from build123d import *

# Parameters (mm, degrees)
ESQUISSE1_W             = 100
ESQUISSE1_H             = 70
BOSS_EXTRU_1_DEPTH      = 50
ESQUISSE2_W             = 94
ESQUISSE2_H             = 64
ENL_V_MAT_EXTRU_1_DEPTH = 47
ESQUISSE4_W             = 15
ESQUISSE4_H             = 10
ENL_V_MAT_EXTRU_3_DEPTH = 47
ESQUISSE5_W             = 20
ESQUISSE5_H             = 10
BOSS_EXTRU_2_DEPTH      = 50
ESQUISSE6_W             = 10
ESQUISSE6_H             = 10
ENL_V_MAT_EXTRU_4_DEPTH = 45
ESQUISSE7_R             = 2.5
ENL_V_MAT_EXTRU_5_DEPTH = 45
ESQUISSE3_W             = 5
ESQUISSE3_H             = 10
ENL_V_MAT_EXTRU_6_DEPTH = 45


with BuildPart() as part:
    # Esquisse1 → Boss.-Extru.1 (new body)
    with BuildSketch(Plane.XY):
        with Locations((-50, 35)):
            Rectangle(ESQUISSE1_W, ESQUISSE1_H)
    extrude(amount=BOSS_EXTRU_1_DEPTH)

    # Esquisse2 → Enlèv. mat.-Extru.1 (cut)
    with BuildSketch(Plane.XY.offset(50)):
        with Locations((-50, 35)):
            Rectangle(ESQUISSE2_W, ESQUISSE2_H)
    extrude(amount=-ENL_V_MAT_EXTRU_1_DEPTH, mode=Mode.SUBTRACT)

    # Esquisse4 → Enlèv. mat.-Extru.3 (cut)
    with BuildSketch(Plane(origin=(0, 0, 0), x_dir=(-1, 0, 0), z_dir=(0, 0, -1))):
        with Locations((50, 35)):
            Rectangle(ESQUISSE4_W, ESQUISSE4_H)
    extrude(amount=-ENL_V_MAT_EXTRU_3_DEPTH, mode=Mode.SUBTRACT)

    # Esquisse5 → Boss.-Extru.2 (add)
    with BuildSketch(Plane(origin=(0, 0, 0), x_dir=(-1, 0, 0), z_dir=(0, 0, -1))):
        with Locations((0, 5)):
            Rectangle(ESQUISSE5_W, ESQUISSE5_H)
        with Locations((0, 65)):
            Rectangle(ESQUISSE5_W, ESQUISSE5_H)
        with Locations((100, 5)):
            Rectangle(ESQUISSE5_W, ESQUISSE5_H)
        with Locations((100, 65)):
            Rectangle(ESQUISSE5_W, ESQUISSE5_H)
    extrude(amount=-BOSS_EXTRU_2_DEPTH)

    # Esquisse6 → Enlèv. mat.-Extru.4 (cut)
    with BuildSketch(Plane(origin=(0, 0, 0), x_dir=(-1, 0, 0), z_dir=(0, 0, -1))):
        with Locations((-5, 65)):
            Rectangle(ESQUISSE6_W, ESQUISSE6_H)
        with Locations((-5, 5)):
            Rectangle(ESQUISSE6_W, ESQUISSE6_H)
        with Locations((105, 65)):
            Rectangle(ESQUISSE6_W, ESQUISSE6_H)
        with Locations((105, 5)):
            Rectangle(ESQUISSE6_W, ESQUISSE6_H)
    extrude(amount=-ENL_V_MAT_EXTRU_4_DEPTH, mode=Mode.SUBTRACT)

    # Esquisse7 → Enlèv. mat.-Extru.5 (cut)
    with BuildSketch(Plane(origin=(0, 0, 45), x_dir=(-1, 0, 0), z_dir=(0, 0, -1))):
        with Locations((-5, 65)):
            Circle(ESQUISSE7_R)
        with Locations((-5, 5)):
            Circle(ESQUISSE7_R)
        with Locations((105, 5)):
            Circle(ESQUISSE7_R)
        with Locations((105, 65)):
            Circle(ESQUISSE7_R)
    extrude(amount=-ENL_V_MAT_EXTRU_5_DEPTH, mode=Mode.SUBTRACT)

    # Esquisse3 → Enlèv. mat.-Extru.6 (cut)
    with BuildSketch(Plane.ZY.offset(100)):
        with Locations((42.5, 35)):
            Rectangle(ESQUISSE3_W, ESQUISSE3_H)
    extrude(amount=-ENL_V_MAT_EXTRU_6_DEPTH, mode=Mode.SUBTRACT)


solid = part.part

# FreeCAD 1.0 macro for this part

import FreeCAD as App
import Part
import Sketcher

V = App.Vector

doc = App.newDocument("Part")
body = doc.addObject("PartDesign::Body", "Body")

# Sketch on XY plane
sketch1 = body.newObject("Sketcher::SketchObject", "Sketch")
sketch1.AttachmentSupport = (doc.getObject("XY_Plane"), [""])
sketch1.MapMode = "FlatFace"
sketch1.addGeometry([
    Part.LineSegment(V(-100, 70, 0), V(-100, 0, 0)),
    Part.LineSegment(V(-100, 0, 0), V(0, 0, 0)),
    Part.LineSegment(V(0, 0, 0), V(0, 70, 0)),
    Part.LineSegment(V(0, 70, 0), V(-100, 70, 0)),
], False)
sketch1.addConstraint([
    Sketcher.Constraint("Coincident", 0, 2, 1, 1),
    Sketcher.Constraint("Coincident", 1, 2, 2, 1),
    Sketcher.Constraint("Coincident", 2, 2, 3, 1),
    Sketcher.Constraint("Coincident", 3, 2, 0, 1),
    Sketcher.Constraint("Vertical", 0),
    Sketcher.Constraint("Horizontal", 1),
    Sketcher.Constraint("Vertical", 2),
    Sketcher.Constraint("Horizontal", 3),
    Sketcher.Constraint("Coincident", 1, 2, -1, 1),
    Sketcher.Constraint("DistanceX", 1, 1, 1, 2, 100.0),
    Sketcher.Constraint("DistanceY", 0, 2, 0, 1, 70.0),
])
pad1 = body.newObject("PartDesign::Pad", "Pad")
pad1.Profile = sketch1
pad1.Length = 50

# Sketch on XY plane
sketch2 = body.newObject("Sketcher::SketchObject", "Sketch001")
sketch2.AttachmentSupport = (doc.getObject("XY_Plane"), [""])
sketch2.MapMode = "FlatFace"
sketch2.AttachmentOffset = App.Placement(V(0, 0, 50), App.Rotation())
sketch2.addGeometry([
    Part.LineSegment(V(-97, 67, 0), V(-97, 3, 0)),
    Part.LineSegment(V(-97, 3, 0), V(-3, 3, 0)),
    Part.LineSegment(V(-3, 3, 0), V(-3, 67, 0)),
    Part.LineSegment(V(-3, 67, 0), V(-97, 67, 0)),
], False)
sketch2.addConstraint([
    Sketcher.Constraint("Coincident", 0, 2, 1, 1),
    Sketcher.Constraint("Coincident", 1, 2, 2, 1),
    Sketcher.Constraint("Coincident", 2, 2, 3, 1),
    Sketcher.Constraint("Coincident", 3, 2, 0, 1),
    Sketcher.Constraint("Vertical", 0),
    Sketcher.Constraint("Horizontal", 1),
    Sketcher.Constraint("Vertical", 2),
    Sketcher.Constraint("Horizontal", 3),
    Sketcher.Constraint("DistanceX", 1, 1, 1, 2, 94.0),
    Sketcher.Constraint("DistanceY", 0, 2, 0, 1, 64.0),
    Sketcher.Constraint("DistanceX", 0, 2, -1, 1, 97.0),
    Sketcher.Constraint("DistanceY", -1, 1, 0, 2, 3.0),
])
pocket1 = body.newObject("PartDesign::Pocket", "Pocket")
pocket1.Profile = sketch2
pocket1.Length = 47

# Sketch on XY plane
sketch3 = body.newObject("Sketcher::SketchObject", "Sketch002")
sketch3.AttachmentSupport = (doc.getObject("XY_Plane"), [""])
sketch3.MapMode = "FlatFace"
sketch3.addGeometry([
    Part.LineSegment(V(-42.5, 40, 0), V(-42.5, 30, 0)),
    Part.LineSegment(V(-42.5, 30, 0), V(-57.5, 30, 0)),
    Part.LineSegment(V(-57.5, 30, 0), V(-57.5, 40, 0)),
    Part.LineSegment(V(-57.5, 40, 0), V(-42.5, 40, 0)),
], False)
sketch3.addConstraint([
    Sketcher.Constraint("Coincident", 0, 2, 1, 1),
    Sketcher.Constraint("Coincident", 1, 2, 2, 1),
    Sketcher.Constraint("Coincident", 2, 2, 3, 1),
    Sketcher.Constraint("Coincident", 3, 2, 0, 1),
    Sketcher.Constraint("Vertical", 0),
    Sketcher.Constraint("Horizontal", 1),
    Sketcher.Constraint("Vertical", 2),
    Sketcher.Constraint("Horizontal", 3),
    Sketcher.Constraint("DistanceX", 1, 2, 1, 1, 15.0),
    Sketcher.Constraint("DistanceY", 0, 2, 0, 1, 10.0),
    Sketcher.Constraint("DistanceY", -1, 1, 0, 2, 30.0),
    Sketcher.Constraint("DistanceX", 0, 2, -1, 1, 42.5),
])
pocket2 = body.newObject("PartDesign::Pocket", "Pocket001")
pocket2.Profile = sketch3
pocket2.Length = 47
pocket2.Reversed = True

# Sketch on XY plane
sketch4 = body.newObject("Sketcher::SketchObject", "Sketch003")
sketch4.AttachmentSupport = (doc.getObject("XY_Plane"), [""])
sketch4.MapMode = "FlatFace"
sketch4.addGeometry([
    Part.LineSegment(V(10, 10, 0), V(10, 0, 0)),  # 0
    Part.LineSegment(V(10, 0, 0), V(-10, 0, 0)),  # 1
    Part.LineSegment(V(-10, 0, 0), V(-10, 10, 0)),  # 2
    Part.LineSegment(V(-10, 10, 0), V(10, 10, 0)),  # 3
    Part.LineSegment(V(10, 70, 0), V(10, 60, 0)),  # 4
    Part.LineSegment(V(10, 60, 0), V(-10, 60, 0)),  # 5
    Part.LineSegment(V(-10, 60, 0), V(-10, 70, 0)),  # 6
    Part.LineSegment(V(-10, 70, 0), V(10, 70, 0)),  # 7
    Part.LineSegment(V(-90, 10, 0), V(-90, 0, 0)),  # 8
    Part.LineSegment(V(-90, 0, 0), V(-110, 0, 0)),  # 9
    Part.LineSegment(V(-110, 0, 0), V(-110, 10, 0)),  # 10
    Part.LineSegment(V(-110, 10, 0), V(-90, 10, 0)),  # 11
    Part.LineSegment(V(-90, 70, 0), V(-90, 60, 0)),  # 12
    Part.LineSegment(V(-90, 60, 0), V(-110, 60, 0)),  # 13
    Part.LineSegment(V(-110, 60, 0), V(-110, 70, 0)),  # 14
    Part.LineSegment(V(-110, 70, 0), V(-90, 70, 0)),  # 15
], False)
sketch4.addConstraint([
    Sketcher.Constraint("Coincident", 0, 2, 1, 1),
    Sketcher.Constraint("Coincident", 1, 2, 2, 1),
    Sketcher.Constraint("Coincident", 2, 2, 3, 1),
    Sketcher.Constraint("Coincident", 3, 2, 0, 1),
    Sketcher.Constraint("Coincident", 4, 2, 5, 1),
    Sketcher.Constraint("Coincident", 5, 2, 6, 1),
    Sketcher.Constraint("Coincident", 6, 2, 7, 1),
    Sketcher.Constraint("Coincident", 7, 2, 4, 1),
    Sketcher.Constraint("Coincident", 8, 2, 9, 1),
    Sketcher.Constraint("Coincident", 9, 2, 10, 1),
    Sketcher.Constraint("Coincident", 10, 2, 11, 1),
    Sketcher.Constraint("Coincident", 11, 2, 8, 1),
    Sketcher.Constraint("Coincident", 12, 2, 13, 1),
    Sketcher.Constraint("Coincident", 13, 2, 14, 1),
    Sketcher.Constraint("Coincident", 14, 2, 15, 1),
    Sketcher.Constraint("Coincident", 15, 2, 12, 1),
    Sketcher.Constraint("Vertical", 0),
    Sketcher.Constraint("Horizontal", 1),
    Sketcher.Constraint("Vertical", 2),
    Sketcher.Constraint("Horizontal", 3),
    Sketcher.Constraint("Vertical", 4),
    Sketcher.Constraint("Horizontal", 5),
    Sketcher.Constraint("Vertical", 6),
    Sketcher.Constraint("Horizontal", 7),
    Sketcher.Constraint("Vertical", 8),
    Sketcher.Constraint("Horizontal", 9),
    Sketcher.Constraint("Vertical", 10),
    Sketcher.Constraint("Horizontal", 11),
    Sketcher.Constraint("Vertical", 12),
    Sketcher.Constraint("Horizontal", 13),
    Sketcher.Constraint("Vertical", 14),
    Sketcher.Constraint("Horizontal", 15),
    Sketcher.Constraint("Symmetric", 0, 2, 1, 2, -1, 1),
    Sketcher.Constraint("PointOnObject", 8, 2, -1),
    Sketcher.Constraint("Horizontal", 3, 2, 10, 2),
    Sketcher.Constraint("Horizontal", 5, 2, 12, 2),
    Sketcher.Constraint("Horizontal", 7, 2, 14, 2),
    Sketcher.Constraint("Vertical", 3, 2, 4, 2),
    Sketcher.Constraint("Vertical", 2, 2, 5, 2),
    Sketcher.Constraint("Vertical", 11, 2, 12, 2),
    Sketcher.Constraint("Vertical", 10, 2, 13, 2),
    Sketcher.Constraint("Equal", 7, 9),
    Sketcher.Constraint("Equal", 2, 4),
    Sketcher.Constraint("DistanceX", 1, 2, 1, 1, 20.0),
    Sketcher.Constraint("DistanceY", 0, 2, 0, 1, 10.0),
    Sketcher.Constraint("DistanceY", -1, 1, 4, 2, 60.0),
    Sketcher.Constraint("DistanceX", 8, 2, -1, 1, 90.0),
])
pad2 = body.newObject("PartDesign::Pad", "Pad001")
pad2.Profile = sketch4
pad2.Length = 50

# Sketch on XY plane
sketch5 = body.newObject("Sketcher::SketchObject", "Sketch004")
sketch5.AttachmentSupport = (doc.getObject("XY_Plane"), [""])
sketch5.MapMode = "FlatFace"
sketch5.addGeometry([
    Part.LineSegment(V(10, 70, 0), V(10, 60, 0)),  # 0
    Part.LineSegment(V(10, 60, 0), V(0, 60, 0)),  # 1
    Part.LineSegment(V(0, 60, 0), V(0, 70, 0)),  # 2
    Part.LineSegment(V(0, 70, 0), V(10, 70, 0)),  # 3
    Part.LineSegment(V(10, 10, 0), V(10, 0, 0)),  # 4
    Part.LineSegment(V(10, 0, 0), V(0, 0, 0)),  # 5
    Part.LineSegment(V(0, 0, 0), V(0, 10, 0)),  # 6
    Part.LineSegment(V(0, 10, 0), V(10, 10, 0)),  # 7
    Part.LineSegment(V(-100, 70, 0), V(-100, 60, 0)),  # 8
    Part.LineSegment(V(-100, 60, 0), V(-110, 60, 0)),  # 9
    Part.LineSegment(V(-110, 60, 0), V(-110, 70, 0)),  # 10
    Part.LineSegment(V(-110, 70, 0), V(-100, 70, 0)),  # 11
    Part.LineSegment(V(-100, 10, 0), V(-100, 0, 0)),  # 12
    Part.LineSegment(V(-100, 0, 0), V(-110, 0, 0)),  # 13
    Part.LineSegment(V(-110, 0, 0), V(-110, 10, 0)),  # 14
    Part.LineSegment(V(-110, 10, 0), V(-100, 10, 0)),  # 15
], False)
sketch5.addConstraint([
    Sketcher.Constraint("Coincident", 0, 2, 1, 1),
    Sketcher.Constraint("Coincident", 1, 2, 2, 1),
    Sketcher.Constraint("Coincident", 2, 2, 3, 1),
    Sketcher.Constraint("Coincident", 3, 2, 0, 1),
    Sketcher.Constraint("Coincident", 4, 2, 5, 1),
    Sketcher.Constraint("Coincident", 5, 2, 6, 1),
    Sketcher.Constraint("Coincident", 6, 2, 7, 1),
    Sketcher.Constraint("Coincident", 7, 2, 4, 1),
    Sketcher.Constraint("Coincident", 8, 2, 9, 1),
    Sketcher.Constraint("Coincident", 9, 2, 10, 1),
    Sketcher.Constraint("Coincident", 10, 2, 11, 1),
    Sketcher.Constraint("Coincident", 11, 2, 8, 1),
    Sketcher.Constraint("Coincident", 12, 2, 13, 1),
    Sketcher.Constraint("Coincident", 13, 2, 14, 1),
    Sketcher.Constraint("Coincident", 14, 2, 15, 1),
    Sketcher.Constraint("Coincident", 15, 2, 12, 1),
    Sketcher.Constraint("Vertical", 0),
    Sketcher.Constraint("Horizontal", 1),
    Sketcher.Constraint("Vertical", 2),
    Sketcher.Constraint("Horizontal", 3),
    Sketcher.Constraint("Vertical", 4),
    Sketcher.Constraint("Horizontal", 5),
    Sketcher.Constraint("Vertical", 6),
    Sketcher.Constraint("Horizontal", 7),
    Sketcher.Constraint("Vertical", 8),
    Sketcher.Constraint("Horizontal", 9),
    Sketcher.Constraint("Vertical", 10),
    Sketcher.Constraint("Horizontal", 11),
    Sketcher.Constraint("Vertical", 12),
    Sketcher.Constraint("Horizontal", 13),
    Sketcher.Constraint("Vertical", 14),
    Sketcher.Constraint("Horizontal", 15),
    Sketcher.Constraint("Coincident", 5, 2, -1, 1),
    Sketcher.Constraint("PointOnObject", 1, 2, -2),
    Sketcher.Constraint("PointOnObject", 12, 2, -1),
    Sketcher.Constraint("Horizontal", 1, 2, 8, 2),
    Sketcher.Constraint("Horizontal", 3, 2, 10, 2),
    Sketcher.Constraint("Horizontal", 7, 2, 14, 2),
    Sketcher.Constraint("Vertical", 3, 2, 4, 2),
    Sketcher.Constraint("Vertical", 11, 2, 12, 2),
    Sketcher.Constraint("Vertical", 10, 2, 13, 2),
    Sketcher.Constraint("Equal", 7, 9),
    Sketcher.Constraint("Equal", 15, 0),
    Sketcher.Constraint("Equal", 2, 4),
    Sketcher.Constraint("DistanceX", 1, 2, 1, 1, 10.0),
    Sketcher.Constraint("DistanceY", -1, 1, 0, 2, 60.0),
    Sketcher.Constraint("DistanceX", 8, 2, -1, 1, 100.0),
])
pocket3 = body.newObject("PartDesign::Pocket", "Pocket002")
pocket3.Profile = sketch5
pocket3.Length = 45
pocket3.Reversed = True

# Sketch on XY plane
sketch6 = body.newObject("Sketcher::SketchObject", "Sketch005")
sketch6.AttachmentSupport = (doc.getObject("XY_Plane"), [""])
sketch6.MapMode = "FlatFace"
sketch6.AttachmentOffset = App.Placement(V(0, 0, 45), App.Rotation())
sketch6.addGeometry([
    Part.Circle(V(5, 65, 0), V(0, 0, 1), 2.5),
    Part.Circle(V(5, 5, 0), V(0, 0, 1), 2.5),
    Part.Circle(V(-105, 5, 0), V(0, 0, 1), 2.5),
    Part.Circle(V(-105, 65, 0), V(0, 0, 1), 2.5),
], False)
sketch6.addConstraint([
    Sketcher.Constraint("Equal", 0, 1),
    Sketcher.Constraint("Equal", 1, 2),
    Sketcher.Constraint("Equal", 2, 3),
    Sketcher.Constraint("Horizontal", 1, 3, 2, 3),
    Sketcher.Constraint("Horizontal", 0, 3, 3, 3),
    Sketcher.Constraint("Vertical", 0, 3, 1, 3),
    Sketcher.Constraint("Vertical", 2, 3, 3, 3),
    Sketcher.Constraint("Diameter", 0, 5.0),
    Sketcher.Constraint("DistanceX", -1, 1, 0, 3, 5.0),
    Sketcher.Constraint("DistanceY", -1, 1, 0, 3, 65.0),
    Sketcher.Constraint("DistanceY", -1, 1, 1, 3, 5.0),
    Sketcher.Constraint("DistanceX", 2, 3, -1, 1, 105.0),
])
pocket4 = body.newObject("PartDesign::Pocket", "Pocket003")
pocket4.Profile = sketch6
pocket4.Length = 45
pocket4.Reversed = True

# Sketch on YZ plane
sketch7 = body.newObject("Sketcher::SketchObject", "Sketch006")
sketch7.AttachmentSupport = (doc.getObject("YZ_Plane"), [""])
sketch7.MapMode = "FlatFace"
sketch7.AttachmentOffset = App.Placement(V(0, 0, -100), App.Rotation())
sketch7.addGeometry([
    Part.LineSegment(V(40, 40, 0), V(30, 40, 0)),
    Part.LineSegment(V(30, 40, 0), V(30, 45, 0)),
    Part.LineSegment(V(30, 45, 0), V(40, 45, 0)),
    Part.LineSegment(V(40, 45, 0), V(40, 40, 0)),
], False)
sketch7.addConstraint([
    Sketcher.Constraint("Coincident", 0, 2, 1, 1),
    Sketcher.Constraint("Coincident", 1, 2, 2, 1),
    Sketcher.Constraint("Coincident", 2, 2, 3, 1),
    Sketcher.Constraint("Coincident", 3, 2, 0, 1),
    Sketcher.Constraint("Horizontal", 0),
    Sketcher.Constraint("Vertical", 1),
    Sketcher.Constraint("Horizontal", 2),
    Sketcher.Constraint("Vertical", 3),
    Sketcher.Constraint("DistanceX", 0, 2, 0, 1, 10.0),
    Sketcher.Constraint("DistanceY", 1, 1, 1, 2, 5.0),
    Sketcher.Constraint("DistanceX", -1, 1, 0, 2, 30.0),
    Sketcher.Constraint("DistanceY", -1, 1, 0, 2, 40.0),
])
pocket5 = body.newObject("PartDesign::Pocket", "Pocket004")
pocket5.Profile = sketch7
pocket5.Length = 45
pocket5.Reversed = True

doc.recompute()
